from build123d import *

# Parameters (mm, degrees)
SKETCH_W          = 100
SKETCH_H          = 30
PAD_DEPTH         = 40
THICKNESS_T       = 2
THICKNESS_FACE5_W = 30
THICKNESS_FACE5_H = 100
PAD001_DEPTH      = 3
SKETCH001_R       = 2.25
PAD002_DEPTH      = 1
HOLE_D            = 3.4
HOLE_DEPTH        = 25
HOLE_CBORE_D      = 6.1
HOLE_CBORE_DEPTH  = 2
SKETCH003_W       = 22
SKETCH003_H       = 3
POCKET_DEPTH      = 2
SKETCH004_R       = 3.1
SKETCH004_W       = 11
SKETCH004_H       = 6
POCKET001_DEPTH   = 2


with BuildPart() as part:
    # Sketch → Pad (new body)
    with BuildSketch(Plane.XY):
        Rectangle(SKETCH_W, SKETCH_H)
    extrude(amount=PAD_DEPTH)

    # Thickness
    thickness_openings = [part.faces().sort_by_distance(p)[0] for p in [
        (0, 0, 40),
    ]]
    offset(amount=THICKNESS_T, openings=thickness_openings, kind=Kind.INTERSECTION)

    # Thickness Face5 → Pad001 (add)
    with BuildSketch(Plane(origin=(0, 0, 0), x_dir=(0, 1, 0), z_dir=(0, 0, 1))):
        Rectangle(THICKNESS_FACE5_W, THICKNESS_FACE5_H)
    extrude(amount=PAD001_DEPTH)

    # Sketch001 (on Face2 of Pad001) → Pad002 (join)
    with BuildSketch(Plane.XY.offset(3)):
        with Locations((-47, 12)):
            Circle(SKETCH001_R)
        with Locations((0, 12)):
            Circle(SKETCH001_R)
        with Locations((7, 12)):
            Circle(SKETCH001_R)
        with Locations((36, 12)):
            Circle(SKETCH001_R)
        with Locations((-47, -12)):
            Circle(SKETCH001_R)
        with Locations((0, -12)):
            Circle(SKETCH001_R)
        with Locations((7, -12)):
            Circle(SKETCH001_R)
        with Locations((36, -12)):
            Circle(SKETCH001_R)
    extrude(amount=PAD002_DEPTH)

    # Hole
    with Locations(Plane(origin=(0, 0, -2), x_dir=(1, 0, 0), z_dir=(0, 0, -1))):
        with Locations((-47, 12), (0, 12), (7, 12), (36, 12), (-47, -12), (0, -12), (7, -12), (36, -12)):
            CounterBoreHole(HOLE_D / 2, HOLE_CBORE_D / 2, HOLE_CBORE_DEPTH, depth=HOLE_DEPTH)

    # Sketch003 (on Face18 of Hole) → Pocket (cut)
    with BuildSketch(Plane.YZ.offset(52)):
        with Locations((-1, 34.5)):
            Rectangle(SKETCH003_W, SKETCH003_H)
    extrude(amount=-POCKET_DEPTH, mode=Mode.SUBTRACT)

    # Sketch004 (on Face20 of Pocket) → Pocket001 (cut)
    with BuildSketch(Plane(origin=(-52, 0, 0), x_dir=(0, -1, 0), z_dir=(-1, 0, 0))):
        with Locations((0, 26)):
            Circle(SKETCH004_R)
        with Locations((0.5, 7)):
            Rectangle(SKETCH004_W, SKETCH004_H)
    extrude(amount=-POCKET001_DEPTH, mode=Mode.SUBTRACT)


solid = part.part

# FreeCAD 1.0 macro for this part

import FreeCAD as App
import Part
import Sketcher

V = App.Vector


def faces_at(feature, points):
    """Names of the faces that lie closest to the given points."""
    faces = feature.Shape.Faces
    near = lambda p: min(range(len(faces)), key=lambda i: faces[i].distToShape(Part.Vertex(*p))[0])
    return sorted({f"Face{near(p) + 1}" for p in points})

doc = App.newDocument("Part")
body = doc.addObject("PartDesign::Body", "Body")

# Sketch on XY plane
sketch1 = body.newObject("Sketcher::SketchObject", "Sketch")
sketch1.AttachmentSupport = (doc.getObject("XY_Plane"), [""])
sketch1.MapMode = "FlatFace"
sketch1.addGeometry([
    Part.LineSegment(V(-50, 15, 0), V(-50, -15, 0)),
    Part.LineSegment(V(-50, -15, 0), V(50, -15, 0)),
    Part.LineSegment(V(50, -15, 0), V(50, 15, 0)),
    Part.LineSegment(V(50, 15, 0), V(-50, 15, 0)),
], False)
sketch1.addConstraint([
    Sketcher.Constraint("Coincident", 0, 2, 1, 1),
    Sketcher.Constraint("Coincident", 1, 2, 2, 1),
    Sketcher.Constraint("Coincident", 2, 2, 3, 1),
    Sketcher.Constraint("Coincident", 3, 2, 0, 1),
    Sketcher.Constraint("Vertical", 0),
    Sketcher.Constraint("Horizontal", 1),
    Sketcher.Constraint("Vertical", 2),
    Sketcher.Constraint("Horizontal", 3),
    Sketcher.Constraint("Symmetric", 0, 2, 2, 2, -1, 1),
    Sketcher.Constraint("DistanceX", 1, 1, 1, 2, 100.0),
    Sketcher.Constraint("DistanceY", 0, 2, 0, 1, 30.0),
])
pad1 = body.newObject("PartDesign::Pad", "Pad")
pad1.Profile = sketch1
pad1.Length = 40
doc.recompute()

thickness = body.newObject("PartDesign::Thickness", "Thickness")
thickness.Base = (pad1, faces_at(pad1, [(0, 0, 40)]))
thickness.Value = 2
thickness.Reversed = False
thickness.Join = "Intersection"

# Sketch on XY plane
sketch2 = body.newObject("Sketcher::SketchObject", "Sketch001")
sketch2.AttachmentSupport = (doc.getObject("XY_Plane"), [""])
sketch2.MapMode = "FlatFace"
sketch2.addGeometry([
    Part.LineSegment(V(-50, -15, 0), V(50, -15, 0)),
    Part.LineSegment(V(50, -15, 0), V(50, 15, 0)),
    Part.LineSegment(V(50, 15, 0), V(-50, 15, 0)),
    Part.LineSegment(V(-50, 15, 0), V(-50, -15, 0)),
], False)
sketch2.addConstraint([
    Sketcher.Constraint("Coincident", 0, 2, 1, 1),
    Sketcher.Constraint("Coincident", 1, 2, 2, 1),
    Sketcher.Constraint("Coincident", 2, 2, 3, 1),
    Sketcher.Constraint("Coincident", 3, 2, 0, 1),
    Sketcher.Constraint("Horizontal", 0),
    Sketcher.Constraint("Vertical", 1),
    Sketcher.Constraint("Horizontal", 2),
    Sketcher.Constraint("Vertical", 3),
    Sketcher.Constraint("Symmetric", 0, 2, 2, 2, -1, 1),
    Sketcher.Constraint("DistanceX", 0, 1, 0, 2, 100.0),
    Sketcher.Constraint("DistanceY", 1, 1, 1, 2, 30.0),
])
pad2 = body.newObject("PartDesign::Pad", "Pad001")
pad2.Profile = sketch2
pad2.Length = 3

# Sketch on XY plane
sketch3 = body.newObject("Sketcher::SketchObject", "Sketch002")
sketch3.AttachmentSupport = (doc.getObject("XY_Plane"), [""])
sketch3.MapMode = "FlatFace"
sketch3.AttachmentOffset = App.Placement(V(0, 0, 3), App.Rotation())
sketch3.addGeometry([
    Part.Circle(V(-47, 12, 0), V(0, 0, 1), 2.25),  # 0
    Part.Circle(V(0, 12, 0), V(0, 0, 1), 2.25),  # 1
    Part.Circle(V(7, 12, 0), V(0, 0, 1), 2.25),  # 2
    Part.Circle(V(36, 12, 0), V(0, 0, 1), 2.25),  # 3
    Part.Circle(V(-47, -12, 0), V(0, 0, 1), 2.25),  # 4
    Part.Circle(V(0, -12, 0), V(0, 0, 1), 2.25),  # 5
    Part.Circle(V(7, -12, 0), V(0, 0, 1), 2.25),  # 6
    Part.Circle(V(36, -12, 0), V(0, 0, 1), 2.25),  # 7
], False)
sketch3.addConstraint([
    Sketcher.Constraint("Equal", 0, 1),
    Sketcher.Constraint("Equal", 1, 2),
    Sketcher.Constraint("Equal", 2, 3),
    Sketcher.Constraint("Equal", 3, 4),
    Sketcher.Constraint("Equal", 4, 5),
    Sketcher.Constraint("Equal", 5, 6),
    Sketcher.Constraint("Equal", 6, 7),
    Sketcher.Constraint("Symmetric", 1, 3, 5, 3, -1, 1),
    Sketcher.Constraint("Symmetric", 0, 3, 4, 3, -1),
    Sketcher.Constraint("Symmetric", 2, 3, 6, 3, -1),
    Sketcher.Constraint("Symmetric", 3, 3, 7, 3, -1),
    Sketcher.Constraint("PointOnObject", 1, 3, -2),
    Sketcher.Constraint("Horizontal", 0, 3, 1, 3),
    Sketcher.Constraint("Horizontal", 1, 3, 2, 3),
    Sketcher.Constraint("Horizontal", 2, 3, 3, 3),
    Sketcher.Constraint("Diameter", 0, 4.5),
    Sketcher.Constraint("DistanceX", 0, 3, -1, 1, 47.0),
    Sketcher.Constraint("DistanceY", -1, 1, 0, 3, 12.0),
    Sketcher.Constraint("DistanceX", -1, 1, 2, 3, 7.0),
    Sketcher.Constraint("DistanceX", -1, 1, 3, 3, 36.0),
])
pad3 = body.newObject("PartDesign::Pad", "Pad002")
pad3.Profile = sketch3
pad3.Length = 1

# Sketch on XY plane
sketch4 = body.newObject("Sketcher::SketchObject", "Sketch003")
sketch4.AttachmentSupport = (doc.getObject("XY_Plane"), [""])
sketch4.MapMode = "FlatFace"
sketch4.AttachmentOffset = App.Placement(V(0, 0, -2), App.Rotation())
sketch4.addGeometry([
    Part.Circle(V(-47, -12, 0), V(0, 0, 1), 1.7),  # 0
    Part.Circle(V(0, -12, 0), V(0, 0, 1), 1.7),  # 1
    Part.Circle(V(7, -12, 0), V(0, 0, 1), 1.7),  # 2
    Part.Circle(V(36, -12, 0), V(0, 0, 1), 1.7),  # 3
    Part.Circle(V(-47, 12, 0), V(0, 0, 1), 1.7),  # 4
    Part.Circle(V(0, 12, 0), V(0, 0, 1), 1.7),  # 5
    Part.Circle(V(7, 12, 0), V(0, 0, 1), 1.7),  # 6
    Part.Circle(V(36, 12, 0), V(0, 0, 1), 1.7),  # 7
], False)
sketch4.addConstraint([
    Sketcher.Constraint("Equal", 0, 1),
    Sketcher.Constraint("Equal", 1, 2),
    Sketcher.Constraint("Equal", 2, 3),
    Sketcher.Constraint("Equal", 3, 4),
    Sketcher.Constraint("Equal", 4, 5),
    Sketcher.Constraint("Equal", 5, 6),
    Sketcher.Constraint("Equal", 6, 7),
    Sketcher.Constraint("Symmetric", 1, 3, 5, 3, -1, 1),
    Sketcher.Constraint("Symmetric", 0, 3, 4, 3, -1),
    Sketcher.Constraint("Symmetric", 2, 3, 6, 3, -1),
    Sketcher.Constraint("Symmetric", 3, 3, 7, 3, -1),
    Sketcher.Constraint("PointOnObject", 1, 3, -2),
    Sketcher.Constraint("Horizontal", 0, 3, 1, 3),
    Sketcher.Constraint("Horizontal", 1, 3, 2, 3),
    Sketcher.Constraint("Horizontal", 2, 3, 3, 3),
    Sketcher.Constraint("Diameter", 0, 3.4),
    Sketcher.Constraint("DistanceX", 0, 3, -1, 1, 47.0),
    Sketcher.Constraint("DistanceY", 0, 3, -1, 1, 12.0),
    Sketcher.Constraint("DistanceX", -1, 1, 2, 3, 7.0),
    Sketcher.Constraint("DistanceX", -1, 1, 3, 3, 36.0),
])
doc.recompute()
hole = body.newObject("PartDesign::Hole", "Hole")
hole.Profile = sketch4
hole.ThreadType = "None"
hole.Diameter = 3.4
hole.DepthType = "Dimension"
hole.Depth = 25
hole.DrillPoint = "Flat"
hole.HoleCutType = "Counterbore"
hole.HoleCutDiameter = 6.1
hole.HoleCutDepth = 2
hole.Reversed = True

# Sketch on YZ plane
sketch5 = body.newObject("Sketcher::SketchObject", "Sketch004")
sketch5.AttachmentSupport = (doc.getObject("YZ_Plane"), [""])
sketch5.MapMode = "FlatFace"
sketch5.AttachmentOffset = App.Placement(V(0, 0, 52), App.Rotation())
sketch5.addGeometry([
    Part.LineSegment(V(-12, 36, 0), V(-12, 33, 0)),
    Part.LineSegment(V(-12, 33, 0), V(10, 33, 0)),
    Part.LineSegment(V(10, 33, 0), V(10, 36, 0)),
    Part.LineSegment(V(10, 36, 0), V(-12, 36, 0)),
], False)
sketch5.addConstraint([
    Sketcher.Constraint("Coincident", 0, 2, 1, 1),
    Sketcher.Constraint("Coincident", 1, 2, 2, 1),
    Sketcher.Constraint("Coincident", 2, 2, 3, 1),
    Sketcher.Constraint("Coincident", 3, 2, 0, 1),
    Sketcher.Constraint("Vertical", 0),
    Sketcher.Constraint("Horizontal", 1),
    Sketcher.Constraint("Vertical", 2),
    Sketcher.Constraint("Horizontal", 3),
    Sketcher.Constraint("DistanceX", 1, 1, 1, 2, 22.0),
    Sketcher.Constraint("DistanceY", 0, 2, 0, 1, 3.0),
    Sketcher.Constraint("DistanceX", 0, 2, -1, 1, 12.0),
    Sketcher.Constraint("DistanceY", -1, 1, 0, 2, 33.0),
])
pocket1 = body.newObject("PartDesign::Pocket", "Pocket")
pocket1.Profile = sketch5
pocket1.Length = 2

# Sketch on YZ plane
sketch6 = body.newObject("Sketcher::SketchObject", "Sketch005")
sketch6.AttachmentSupport = (doc.getObject("YZ_Plane"), [""])
sketch6.MapMode = "FlatFace"
sketch6.AttachmentOffset = App.Placement(V(0, 0, -52), App.Rotation())
sketch6.addGeometry([
    Part.Circle(V(0, 26, 0), V(0, 0, 1), 3.1),  # 0
    Part.LineSegment(V(5, 10, 0), V(5, 4, 0)),  # 1
    Part.LineSegment(V(5, 4, 0), V(-6, 4, 0)),  # 2
    Part.LineSegment(V(-6, 4, 0), V(-6, 10, 0)),  # 3
    Part.LineSegment(V(-6, 10, 0), V(5, 10, 0)),  # 4
], False)
sketch6.addConstraint([
    Sketcher.Constraint("Coincident", 1, 2, 2, 1),
    Sketcher.Constraint("Coincident", 2, 2, 3, 1),
    Sketcher.Constraint("Coincident", 3, 2, 4, 1),
    Sketcher.Constraint("Coincident", 4, 2, 1, 1),
    Sketcher.Constraint("Vertical", 1),
    Sketcher.Constraint("Horizontal", 2),
    Sketcher.Constraint("Vertical", 3),
    Sketcher.Constraint("Horizontal", 4),
    Sketcher.Constraint("PointOnObject", 0, 3, -2),
    Sketcher.Constraint("Diameter", 0, 6.2),
    Sketcher.Constraint("DistanceX", 2, 2, 2, 1, 11.0),
    Sketcher.Constraint("DistanceY", 1, 2, 1, 1, 6.0),
    Sketcher.Constraint("DistanceY", -1, 1, 0, 3, 26.0),
    Sketcher.Constraint("DistanceX", -1, 1, 1, 2, 5.0),
    Sketcher.Constraint("DistanceY", -1, 1, 1, 2, 4.0),
])
pocket2 = body.newObject("PartDesign::Pocket", "Pocket001")
pocket2.Profile = sketch6
pocket2.Length = 2
pocket2.Reversed = True

doc.recompute()
